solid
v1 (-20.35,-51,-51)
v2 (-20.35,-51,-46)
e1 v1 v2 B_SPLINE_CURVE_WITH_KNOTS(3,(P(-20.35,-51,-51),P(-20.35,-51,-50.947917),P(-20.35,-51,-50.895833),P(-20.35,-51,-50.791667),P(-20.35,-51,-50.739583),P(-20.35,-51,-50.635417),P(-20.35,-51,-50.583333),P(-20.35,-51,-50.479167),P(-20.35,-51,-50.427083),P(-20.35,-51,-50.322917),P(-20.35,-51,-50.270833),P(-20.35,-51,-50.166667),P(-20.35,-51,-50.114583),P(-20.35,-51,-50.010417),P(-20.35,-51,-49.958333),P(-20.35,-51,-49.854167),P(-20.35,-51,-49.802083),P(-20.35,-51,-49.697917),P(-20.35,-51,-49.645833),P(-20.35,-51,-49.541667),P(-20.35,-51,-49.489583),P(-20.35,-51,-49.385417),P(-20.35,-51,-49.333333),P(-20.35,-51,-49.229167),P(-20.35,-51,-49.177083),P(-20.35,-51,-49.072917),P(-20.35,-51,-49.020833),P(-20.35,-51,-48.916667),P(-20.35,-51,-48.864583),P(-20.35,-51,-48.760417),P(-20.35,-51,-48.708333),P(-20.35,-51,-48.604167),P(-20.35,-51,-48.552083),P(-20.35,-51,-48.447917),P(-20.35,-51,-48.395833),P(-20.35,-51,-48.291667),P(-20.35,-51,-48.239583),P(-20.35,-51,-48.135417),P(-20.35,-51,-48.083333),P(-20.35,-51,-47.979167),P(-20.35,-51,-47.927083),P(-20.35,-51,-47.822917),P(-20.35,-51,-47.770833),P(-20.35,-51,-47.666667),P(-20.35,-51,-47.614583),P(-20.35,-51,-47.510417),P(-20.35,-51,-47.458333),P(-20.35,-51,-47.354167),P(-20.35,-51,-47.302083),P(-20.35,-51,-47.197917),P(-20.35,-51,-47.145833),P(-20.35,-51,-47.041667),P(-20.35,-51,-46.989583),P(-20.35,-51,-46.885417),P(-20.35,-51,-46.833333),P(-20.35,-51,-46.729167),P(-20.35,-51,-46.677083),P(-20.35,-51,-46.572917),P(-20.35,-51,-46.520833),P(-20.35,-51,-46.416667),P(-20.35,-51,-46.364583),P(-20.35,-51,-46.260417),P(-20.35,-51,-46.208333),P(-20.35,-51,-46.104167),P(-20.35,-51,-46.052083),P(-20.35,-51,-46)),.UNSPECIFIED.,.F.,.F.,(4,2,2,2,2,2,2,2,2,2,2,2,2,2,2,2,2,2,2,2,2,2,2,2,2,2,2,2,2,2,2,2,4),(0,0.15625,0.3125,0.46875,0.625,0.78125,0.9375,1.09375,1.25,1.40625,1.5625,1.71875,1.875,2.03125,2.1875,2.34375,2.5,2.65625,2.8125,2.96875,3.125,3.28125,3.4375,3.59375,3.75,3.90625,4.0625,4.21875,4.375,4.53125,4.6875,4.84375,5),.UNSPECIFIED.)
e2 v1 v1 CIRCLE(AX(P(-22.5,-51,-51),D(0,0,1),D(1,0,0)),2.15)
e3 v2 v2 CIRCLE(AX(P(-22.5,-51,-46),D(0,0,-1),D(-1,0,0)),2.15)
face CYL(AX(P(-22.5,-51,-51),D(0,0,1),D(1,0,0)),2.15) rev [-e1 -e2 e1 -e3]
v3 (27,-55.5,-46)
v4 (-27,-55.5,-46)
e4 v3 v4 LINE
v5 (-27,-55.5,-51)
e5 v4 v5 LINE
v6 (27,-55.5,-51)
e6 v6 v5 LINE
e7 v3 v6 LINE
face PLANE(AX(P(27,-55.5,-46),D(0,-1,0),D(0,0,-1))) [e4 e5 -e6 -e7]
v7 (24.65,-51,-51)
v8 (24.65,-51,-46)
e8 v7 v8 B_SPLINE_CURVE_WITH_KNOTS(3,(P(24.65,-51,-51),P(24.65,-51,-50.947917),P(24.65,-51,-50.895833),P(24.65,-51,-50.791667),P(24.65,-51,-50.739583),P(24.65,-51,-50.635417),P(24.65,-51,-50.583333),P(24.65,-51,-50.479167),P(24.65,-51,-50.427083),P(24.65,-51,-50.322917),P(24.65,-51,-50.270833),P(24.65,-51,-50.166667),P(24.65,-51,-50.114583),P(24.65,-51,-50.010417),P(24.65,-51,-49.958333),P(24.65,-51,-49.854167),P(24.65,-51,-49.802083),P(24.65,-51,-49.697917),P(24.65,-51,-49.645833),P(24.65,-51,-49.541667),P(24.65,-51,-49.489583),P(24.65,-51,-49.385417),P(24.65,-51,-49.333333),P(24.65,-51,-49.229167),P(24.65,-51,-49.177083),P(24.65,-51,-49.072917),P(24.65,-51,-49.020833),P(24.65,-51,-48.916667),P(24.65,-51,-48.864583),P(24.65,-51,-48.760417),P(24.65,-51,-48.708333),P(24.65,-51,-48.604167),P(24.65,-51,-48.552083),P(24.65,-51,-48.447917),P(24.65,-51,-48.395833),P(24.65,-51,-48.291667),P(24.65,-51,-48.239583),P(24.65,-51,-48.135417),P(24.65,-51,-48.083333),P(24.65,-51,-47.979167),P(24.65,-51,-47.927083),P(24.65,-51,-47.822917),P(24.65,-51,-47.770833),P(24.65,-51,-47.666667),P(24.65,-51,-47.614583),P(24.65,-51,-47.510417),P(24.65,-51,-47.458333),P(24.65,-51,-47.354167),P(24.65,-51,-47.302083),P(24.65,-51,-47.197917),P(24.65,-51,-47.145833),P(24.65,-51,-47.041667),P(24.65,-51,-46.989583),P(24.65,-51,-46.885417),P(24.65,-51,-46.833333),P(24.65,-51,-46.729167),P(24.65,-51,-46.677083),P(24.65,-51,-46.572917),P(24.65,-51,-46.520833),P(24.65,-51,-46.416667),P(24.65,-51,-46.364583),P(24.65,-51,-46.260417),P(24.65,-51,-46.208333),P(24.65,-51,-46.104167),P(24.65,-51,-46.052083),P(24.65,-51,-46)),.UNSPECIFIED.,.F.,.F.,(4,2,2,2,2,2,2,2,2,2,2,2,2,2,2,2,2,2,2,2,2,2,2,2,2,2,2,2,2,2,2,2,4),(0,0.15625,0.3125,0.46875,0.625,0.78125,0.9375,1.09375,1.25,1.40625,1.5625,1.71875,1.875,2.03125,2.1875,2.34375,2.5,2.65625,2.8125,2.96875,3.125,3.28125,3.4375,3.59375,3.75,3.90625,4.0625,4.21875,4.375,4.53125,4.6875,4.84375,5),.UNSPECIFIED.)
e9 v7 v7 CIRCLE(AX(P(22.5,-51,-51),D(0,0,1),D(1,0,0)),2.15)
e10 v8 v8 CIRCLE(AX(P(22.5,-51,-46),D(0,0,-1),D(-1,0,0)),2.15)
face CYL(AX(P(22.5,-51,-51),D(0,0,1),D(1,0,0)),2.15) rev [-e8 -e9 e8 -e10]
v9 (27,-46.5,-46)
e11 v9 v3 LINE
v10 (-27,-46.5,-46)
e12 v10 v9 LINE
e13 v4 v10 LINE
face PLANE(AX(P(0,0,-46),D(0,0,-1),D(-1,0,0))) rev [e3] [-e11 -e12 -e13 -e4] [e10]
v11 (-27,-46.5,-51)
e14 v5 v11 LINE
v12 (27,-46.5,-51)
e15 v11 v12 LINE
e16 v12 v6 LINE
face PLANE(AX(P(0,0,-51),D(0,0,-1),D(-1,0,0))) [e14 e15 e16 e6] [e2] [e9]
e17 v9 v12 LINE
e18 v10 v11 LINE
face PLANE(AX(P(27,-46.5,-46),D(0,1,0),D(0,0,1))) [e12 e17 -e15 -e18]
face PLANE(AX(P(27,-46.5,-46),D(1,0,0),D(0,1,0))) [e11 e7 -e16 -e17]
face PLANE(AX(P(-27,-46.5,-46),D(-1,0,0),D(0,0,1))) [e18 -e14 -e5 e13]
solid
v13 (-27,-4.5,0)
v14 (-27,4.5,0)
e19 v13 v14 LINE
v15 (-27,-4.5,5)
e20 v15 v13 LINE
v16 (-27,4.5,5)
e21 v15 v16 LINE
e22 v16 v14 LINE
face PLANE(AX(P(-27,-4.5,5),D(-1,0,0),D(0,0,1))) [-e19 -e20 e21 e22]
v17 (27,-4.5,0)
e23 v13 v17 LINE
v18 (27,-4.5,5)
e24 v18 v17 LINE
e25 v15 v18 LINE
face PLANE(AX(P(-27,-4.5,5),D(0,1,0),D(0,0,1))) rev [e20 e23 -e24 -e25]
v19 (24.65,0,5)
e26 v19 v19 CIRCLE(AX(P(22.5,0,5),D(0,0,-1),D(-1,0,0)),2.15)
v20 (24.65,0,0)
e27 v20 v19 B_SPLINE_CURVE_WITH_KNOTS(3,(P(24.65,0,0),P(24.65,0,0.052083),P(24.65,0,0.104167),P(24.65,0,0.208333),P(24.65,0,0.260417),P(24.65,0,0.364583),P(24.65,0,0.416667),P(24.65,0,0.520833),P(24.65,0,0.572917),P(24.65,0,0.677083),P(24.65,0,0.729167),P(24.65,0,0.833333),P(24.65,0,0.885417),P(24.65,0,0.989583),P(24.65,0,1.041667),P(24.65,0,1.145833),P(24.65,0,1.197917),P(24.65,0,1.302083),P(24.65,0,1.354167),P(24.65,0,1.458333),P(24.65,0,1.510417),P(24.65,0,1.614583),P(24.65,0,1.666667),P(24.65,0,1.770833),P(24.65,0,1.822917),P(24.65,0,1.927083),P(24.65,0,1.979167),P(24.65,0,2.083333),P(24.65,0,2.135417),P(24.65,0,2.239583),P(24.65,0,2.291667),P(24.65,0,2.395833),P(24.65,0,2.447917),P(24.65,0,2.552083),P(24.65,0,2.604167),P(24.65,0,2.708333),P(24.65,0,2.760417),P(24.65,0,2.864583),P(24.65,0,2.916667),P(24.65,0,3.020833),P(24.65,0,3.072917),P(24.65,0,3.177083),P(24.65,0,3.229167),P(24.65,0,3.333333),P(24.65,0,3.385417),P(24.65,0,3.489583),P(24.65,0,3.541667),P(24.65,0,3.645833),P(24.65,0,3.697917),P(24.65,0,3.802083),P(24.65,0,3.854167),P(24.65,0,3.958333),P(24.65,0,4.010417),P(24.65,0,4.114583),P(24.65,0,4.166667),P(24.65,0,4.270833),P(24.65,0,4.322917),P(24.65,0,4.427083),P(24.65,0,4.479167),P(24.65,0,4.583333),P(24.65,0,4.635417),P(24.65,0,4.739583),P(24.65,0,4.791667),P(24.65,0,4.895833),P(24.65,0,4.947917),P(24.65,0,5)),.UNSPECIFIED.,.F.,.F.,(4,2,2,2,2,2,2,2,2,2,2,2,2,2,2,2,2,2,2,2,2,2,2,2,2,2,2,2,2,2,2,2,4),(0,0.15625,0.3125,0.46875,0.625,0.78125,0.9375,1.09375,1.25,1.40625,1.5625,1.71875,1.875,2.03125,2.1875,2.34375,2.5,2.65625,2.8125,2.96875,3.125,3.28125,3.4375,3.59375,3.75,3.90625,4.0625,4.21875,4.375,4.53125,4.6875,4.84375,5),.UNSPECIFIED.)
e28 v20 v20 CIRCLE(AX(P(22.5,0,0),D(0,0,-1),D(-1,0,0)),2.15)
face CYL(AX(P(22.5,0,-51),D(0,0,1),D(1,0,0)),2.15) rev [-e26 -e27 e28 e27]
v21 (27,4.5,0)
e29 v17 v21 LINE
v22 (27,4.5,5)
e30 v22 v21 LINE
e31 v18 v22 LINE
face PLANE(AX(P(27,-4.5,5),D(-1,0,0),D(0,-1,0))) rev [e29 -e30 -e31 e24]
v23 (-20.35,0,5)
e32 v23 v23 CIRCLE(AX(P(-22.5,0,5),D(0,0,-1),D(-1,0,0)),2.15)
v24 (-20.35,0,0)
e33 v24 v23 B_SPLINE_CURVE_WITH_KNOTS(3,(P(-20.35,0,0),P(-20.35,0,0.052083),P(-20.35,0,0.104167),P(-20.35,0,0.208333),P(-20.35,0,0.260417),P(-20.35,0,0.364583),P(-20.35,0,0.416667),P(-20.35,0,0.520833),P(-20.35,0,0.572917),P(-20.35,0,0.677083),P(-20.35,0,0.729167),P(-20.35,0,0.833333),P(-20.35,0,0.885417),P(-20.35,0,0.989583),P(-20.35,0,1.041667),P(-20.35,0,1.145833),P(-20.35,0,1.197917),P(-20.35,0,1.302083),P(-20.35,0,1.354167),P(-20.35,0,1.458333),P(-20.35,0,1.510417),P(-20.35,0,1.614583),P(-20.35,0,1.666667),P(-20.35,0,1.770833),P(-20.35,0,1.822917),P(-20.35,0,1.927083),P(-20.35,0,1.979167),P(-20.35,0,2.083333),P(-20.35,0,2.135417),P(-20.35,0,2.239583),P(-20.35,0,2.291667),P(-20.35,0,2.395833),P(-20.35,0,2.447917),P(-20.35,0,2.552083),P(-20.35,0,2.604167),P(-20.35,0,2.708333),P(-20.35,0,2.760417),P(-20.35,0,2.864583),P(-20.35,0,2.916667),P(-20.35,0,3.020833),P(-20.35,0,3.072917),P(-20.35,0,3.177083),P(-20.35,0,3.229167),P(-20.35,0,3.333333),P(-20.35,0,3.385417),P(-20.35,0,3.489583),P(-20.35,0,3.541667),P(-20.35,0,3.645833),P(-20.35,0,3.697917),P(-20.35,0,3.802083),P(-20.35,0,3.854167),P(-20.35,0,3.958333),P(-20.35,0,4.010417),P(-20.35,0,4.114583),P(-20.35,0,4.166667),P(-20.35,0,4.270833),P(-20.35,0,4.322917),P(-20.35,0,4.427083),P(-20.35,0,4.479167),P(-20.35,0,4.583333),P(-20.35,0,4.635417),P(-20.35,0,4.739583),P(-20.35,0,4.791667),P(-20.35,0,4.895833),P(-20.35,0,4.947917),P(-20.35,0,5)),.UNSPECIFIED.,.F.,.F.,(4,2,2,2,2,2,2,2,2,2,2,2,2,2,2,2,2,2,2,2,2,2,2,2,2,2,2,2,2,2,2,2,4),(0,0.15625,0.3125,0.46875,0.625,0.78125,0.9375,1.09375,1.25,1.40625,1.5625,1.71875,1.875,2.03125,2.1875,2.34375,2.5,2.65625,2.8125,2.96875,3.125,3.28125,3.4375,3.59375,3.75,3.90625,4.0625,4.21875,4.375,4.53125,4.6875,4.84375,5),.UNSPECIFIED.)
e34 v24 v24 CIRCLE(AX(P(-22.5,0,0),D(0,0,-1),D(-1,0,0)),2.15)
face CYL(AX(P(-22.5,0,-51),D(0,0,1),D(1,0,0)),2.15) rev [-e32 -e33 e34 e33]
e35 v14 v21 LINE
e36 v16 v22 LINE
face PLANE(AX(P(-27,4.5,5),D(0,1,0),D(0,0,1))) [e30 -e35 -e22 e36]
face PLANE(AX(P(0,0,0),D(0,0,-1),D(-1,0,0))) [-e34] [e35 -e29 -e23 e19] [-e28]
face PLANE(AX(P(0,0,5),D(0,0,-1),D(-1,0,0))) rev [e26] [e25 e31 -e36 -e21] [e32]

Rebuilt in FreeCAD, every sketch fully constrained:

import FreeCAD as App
import Part
import Sketcher
from FreeCAD import Vector
Q = App.Units.Quantity


def add_polygon(sketch, points):
    """Adds a closed chain of lines whose ends are joined by coincident constraints."""
    first, n = sketch.GeometryCount, len(points)
    for a, b in zip(points, points[1:] + points[:1]):
        sketch.addGeometry(Part.LineSegment(App.Vector(*a, 0), App.Vector(*b, 0)), False)
    for i in range(n):
        sketch.addConstraint(Sketcher.Constraint("Coincident", first + i, 2, first + (i + 1) % n, 1))

doc = App.newDocument("Part")
body = doc.addObject("PartDesign::Body", "Body")

# Sketch on XY plane
sketch1 = body.newObject("Sketcher::SketchObject", "Sketch")
sketch1.AttachmentSupport = (doc.getObject("XY_Plane"), [""])
sketch1.MapMode = "FlatFace"
add_polygon(sketch1, [(-27, 4.5), (-27, -4.5), (27, -4.5), (27, 4.5)])  # lines 0-3
sketch1.addConstraint(Sketcher.Constraint("Vertical", 0))
sketch1.addConstraint(Sketcher.Constraint("Horizontal", 1))
sketch1.addConstraint(Sketcher.Constraint("Vertical", 2))
sketch1.addConstraint(Sketcher.Constraint("Horizontal", 3))
sketch1.addConstraint(Sketcher.Constraint("Symmetric", 0, 2, 2, 2, -1, 1))
sketch1.addConstraint(Sketcher.Constraint("DistanceX", 1, 1, 1, 2, Q("54 mm")))
sketch1.addConstraint(Sketcher.Constraint("DistanceY", 0, 2, 0, 1, Q("9 mm")))
pad1 = body.newObject("PartDesign::Pad", "Pad")
pad1.Profile = sketch1
pad1.Length = 5
body2 = doc.addObject("PartDesign::Body", "Body001")

# Sketch on XY plane
sketch2 = body2.newObject("Sketcher::SketchObject", "Sketch001")
sketch2.AttachmentSupport = (doc.getObject("XY_Plane001"), [""])
sketch2.MapMode = "FlatFace"
sketch2.AttachmentOffset = App.Placement(Vector(0, 0, -51), App.Rotation())
add_polygon(sketch2, [(27, -46.5), (27, -55.5), (-27, -55.5), (-27, -46.5)])  # lines 0-3
sketch2.addConstraint(Sketcher.Constraint("Vertical", 0))
sketch2.addConstraint(Sketcher.Constraint("Horizontal", 1))
sketch2.addConstraint(Sketcher.Constraint("Vertical", 2))
sketch2.addConstraint(Sketcher.Constraint("Horizontal", 3))
sketch2.addConstraint(Sketcher.Constraint("DistanceX", 1, 2, 1, 1, Q("54 mm")))
sketch2.addConstraint(Sketcher.Constraint("DistanceY", 0, 2, 0, 1, Q("9 mm")))
sketch2.addConstraint(Sketcher.Constraint("DistanceX", -1, 1, 0, 2, Q("27 mm")))
sketch2.addConstraint(Sketcher.Constraint("DistanceY", 0, 2, -1, 1, Q("55.5 mm")))
pad2 = body2.newObject("PartDesign::Pad", "Pad001")
pad2.Profile = sketch2
pad2.Length = 5
body3 = doc.addObject("PartDesign::Body", "Body002")
body3.AllowCompound = True

# Sketch on XY plane
sketch3 = body3.newObject("Sketcher::SketchObject", "Sketch002")
sketch3.AttachmentSupport = (doc.getObject("XY_Plane002"), [""])
sketch3.MapMode = "FlatFace"
sketch3.AttachmentOffset = App.Placement(Vector(0, 0, 5), App.Rotation())
sketch3.addGeometry(Part.Circle(Vector(22.5, 0, 0), Vector(0, 0, 1), 2.15), False)
sketch3.addGeometry(Part.Circle(Vector(-22.5, 0, 0), Vector(0, 0, 1), 2.15), False)
sketch3.addGeometry(Part.Circle(Vector(-22.5, -51, 0), Vector(0, 0, 1), 2.15), False)
sketch3.addGeometry(Part.Circle(Vector(22.5, -51, 0), Vector(0, 0, 1), 2.15), False)
sketch3.addConstraint(Sketcher.Constraint("Equal", 0, 1))
sketch3.addConstraint(Sketcher.Constraint("Equal", 1, 2))
sketch3.addConstraint(Sketcher.Constraint("Equal", 2, 3))
sketch3.addConstraint(Sketcher.Constraint("Symmetric", 0, 3, 1, 3, -1, 1))
sketch3.addConstraint(Sketcher.Constraint("Symmetric", 2, 3, 3, 3, -2))
sketch3.addConstraint(Sketcher.Constraint("PointOnObject", 0, 3, -1))
sketch3.addConstraint(Sketcher.Constraint("Vertical", 1, 3, 2, 3))
sketch3.addConstraint(Sketcher.Constraint("Diameter", 0, Q("4.3 mm")))
sketch3.addConstraint(Sketcher.Constraint("DistanceY", 2, 3, -1, 1, Q("51 mm")))
sketch3.addConstraint(Sketcher.Constraint("DistanceX", 1, 3, 0, 3, Q("45 mm")))
pad3 = body3.newObject("PartDesign::Pad", "Pad002")
pad3.Profile = sketch3
pad3.Type = "TwoLengths"
pad3.Length = 84.338167
pad3.Length2 = 84.338167
doc.recompute()

body4 = doc.addObject("PartDesign::Body", "Body003")
body4.BaseFeature = body3
boolean = body.newObject("PartDesign::Boolean", "Boolean")
boolean.Type = "Cut"
boolean.addObjects([body4])
doc.recompute()

boolean2 = body2.newObject("PartDesign::Boolean", "Boolean001")
boolean2.Type = "Cut"
boolean2.addObjects([body3])

doc.recompute()
